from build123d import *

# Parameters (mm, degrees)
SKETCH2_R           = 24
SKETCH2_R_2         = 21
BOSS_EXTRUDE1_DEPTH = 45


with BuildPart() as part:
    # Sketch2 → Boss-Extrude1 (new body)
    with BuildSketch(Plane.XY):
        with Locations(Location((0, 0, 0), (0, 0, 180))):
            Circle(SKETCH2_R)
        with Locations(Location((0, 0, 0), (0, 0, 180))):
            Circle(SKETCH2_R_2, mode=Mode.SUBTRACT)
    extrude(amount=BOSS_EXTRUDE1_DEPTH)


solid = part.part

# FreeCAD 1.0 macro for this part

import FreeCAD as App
import Part
import Sketcher
from FreeCAD import Vector
Q = App.Units.Quantity

doc = App.newDocument("Part")
params = doc.addObject("Spreadsheet::Sheet", "Params")
for row, (alias, value) in enumerate([
    ("sketch1_diameter", "48 mm"),
    ("sketch1_diameter2", "42 mm"),
    ("pad1_length", "45 mm"),
], start=1):
    params.set(f"A{row}", alias)
    params.set(f"B{row}", "=" + value)
    params.setAlias(f"B{row}", alias)

body = doc.addObject("PartDesign::Body", "Body")

# Sketch on XY plane
sketch1 = doc.addObject("Sketcher::SketchObject", "Sketch")
body.addObject(sketch1)
sketch1.AttachmentSupport = (doc.XY_Plane, [""])
sketch1.MapMode = "FlatFace"
sketch1.addGeometry([
    Part.Circle(Vector(0, 0, 0), Vector(0, 0, 1), 24),
    Part.Circle(Vector(0, 0, 0), Vector(0, 0, 1), 21),
], False)
sketch1.addConstraint([
    Sketcher.Constraint("Coincident", 0, 3, -1, 1),
    Sketcher.Constraint("Coincident", 1, 3, -1, 1),
    Sketcher.Constraint("Diameter", 0, Q("48 mm")),
    Sketcher.Constraint("Diameter", 1, Q("42 mm")),
])
sketch1.setExpression("Constraints[2]", "Params.sketch1_diameter")
sketch1.setExpression("Constraints[3]", "Params.sketch1_diameter2")
pad1 = doc.addObject("PartDesign::Pad", "Pad")
body.addObject(pad1)
pad1.Profile = sketch1
pad1.setExpression("Length", "Params.pad1_length")

doc.recompute()
